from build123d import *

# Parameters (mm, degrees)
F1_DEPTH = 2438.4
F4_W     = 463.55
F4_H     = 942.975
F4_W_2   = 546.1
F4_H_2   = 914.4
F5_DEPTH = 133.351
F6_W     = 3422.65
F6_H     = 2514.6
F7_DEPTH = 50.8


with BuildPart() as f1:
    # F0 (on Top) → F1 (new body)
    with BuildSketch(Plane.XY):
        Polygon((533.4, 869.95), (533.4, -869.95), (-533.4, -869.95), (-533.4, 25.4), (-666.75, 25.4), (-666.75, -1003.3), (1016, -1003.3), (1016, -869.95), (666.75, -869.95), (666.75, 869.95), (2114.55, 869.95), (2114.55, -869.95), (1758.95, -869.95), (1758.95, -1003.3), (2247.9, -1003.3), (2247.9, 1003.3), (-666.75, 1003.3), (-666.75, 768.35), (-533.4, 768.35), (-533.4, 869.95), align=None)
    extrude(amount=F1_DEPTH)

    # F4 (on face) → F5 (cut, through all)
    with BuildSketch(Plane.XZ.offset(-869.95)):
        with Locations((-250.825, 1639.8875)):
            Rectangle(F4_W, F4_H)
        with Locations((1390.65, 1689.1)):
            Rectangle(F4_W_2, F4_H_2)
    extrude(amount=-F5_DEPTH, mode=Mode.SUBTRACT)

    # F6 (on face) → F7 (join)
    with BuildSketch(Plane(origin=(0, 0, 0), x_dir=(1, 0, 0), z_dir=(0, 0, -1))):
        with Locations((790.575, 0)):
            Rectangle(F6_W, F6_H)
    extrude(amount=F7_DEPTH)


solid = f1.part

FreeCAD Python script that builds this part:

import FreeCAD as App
import Part
import Sketcher
Q = App.Units.Quantity

doc = App.newDocument("Part")
params = doc.addObject("Spreadsheet::Sheet", "Params")
for row, (alias, value) in enumerate([
    ("sketch1_width", "42 in"),
    ("sketch1_width2", "57 in"),
    ("sketch1_width3", "14 in"),
    ("sketch1_height", "79 in"),
    ("sketch1_height2", "4 in"),
    ("pad1_length", "96 in"),
    ("sketch2_height", "36 in"),
    ("sketch2_width", "21.5 in"),
    ("sketch2_width2", "18.25 in"),
    ("sketch2_height2", "37.125 in"),
    ("sketch3_height", "99 in"),
    ("sketch3_width", "134.75 in"),
    ("pad2_length", "2 in"),
], start=1):
    params.set(f"A{row}", alias)
    params.set(f"B{row}", "=" + value)
    params.setAlias(f"B{row}", alias)

body = doc.addObject("PartDesign::Body", "Body")

# Sketch on XY plane
sketch1 = body.newObject("Sketcher::SketchObject", "Sketch")
sketch1.AttachmentSupport = (doc.getObject("XY_Plane"), [""])
sketch1.MapMode = "FlatFace"
sketch1.addGeometry(Part.LineSegment(App.Vector(533, 870, 0), App.Vector(533, -870, 0)), False)
sketch1.addGeometry(Part.LineSegment(App.Vector(533, -870, 0), App.Vector(-533, -870, 0)), False)
sketch1.addGeometry(Part.LineSegment(App.Vector(-533, -870, 0), App.Vector(-533, 25, 0)), False)
sketch1.addGeometry(Part.LineSegment(App.Vector(-533, 25, 0), App.Vector(-667, 25, 0)), False)
sketch1.addGeometry(Part.LineSegment(App.Vector(-667, 25, 0), App.Vector(-667, -1003, 0)), False)
sketch1.addGeometry(Part.LineSegment(App.Vector(-667, -1003, 0), App.Vector(1016, -1003, 0)), False)
sketch1.addGeometry(Part.LineSegment(App.Vector(1016, -1003, 0), App.Vector(1016, -870, 0)), False)
sketch1.addGeometry(Part.LineSegment(App.Vector(1016, -870, 0), App.Vector(667, -870, 0)), False)
sketch1.addGeometry(Part.LineSegment(App.Vector(667, -870, 0), App.Vector(667, 870, 0)), False)
sketch1.addGeometry(Part.LineSegment(App.Vector(667, 870, 0), App.Vector(2115, 870, 0)), False)
sketch1.addGeometry(Part.LineSegment(App.Vector(2115, 870, 0), App.Vector(2115, -870, 0)), False)
sketch1.addGeometry(Part.LineSegment(App.Vector(2115, -870, 0), App.Vector(1759, -870, 0)), False)
sketch1.addGeometry(Part.LineSegment(App.Vector(1759, -870, 0), App.Vector(1759, -1003, 0)), False)
sketch1.addGeometry(Part.LineSegment(App.Vector(1759, -1003, 0), App.Vector(2248, -1003, 0)), False)
sketch1.addGeometry(Part.LineSegment(App.Vector(2248, -1003, 0), App.Vector(2248, 1003, 0)), False)
sketch1.addGeometry(Part.LineSegment(App.Vector(2248, 1003, 0), App.Vector(-667, 1003, 0)), False)
sketch1.addGeometry(Part.LineSegment(App.Vector(-667, 1003, 0), App.Vector(-667, 768, 0)), False)
sketch1.addGeometry(Part.LineSegment(App.Vector(-667, 768, 0), App.Vector(-533, 768, 0)), False)
sketch1.addGeometry(Part.LineSegment(App.Vector(-533, 768, 0), App.Vector(-533, 870, 0)), False)
sketch1.addGeometry(Part.LineSegment(App.Vector(-533, 870, 0), App.Vector(533, 870, 0)), False)
sketch1.addConstraint(Sketcher.Constraint("Coincident", 0, 2, 1, 1))
sketch1.addConstraint(Sketcher.Constraint("Coincident", 1, 2, 2, 1))
sketch1.addConstraint(Sketcher.Constraint("Coincident", 2, 2, 3, 1))
sketch1.addConstraint(Sketcher.Constraint("Coincident", 3, 2, 4, 1))
sketch1.addConstraint(Sketcher.Constraint("Coincident", 4, 2, 5, 1))
sketch1.addConstraint(Sketcher.Constraint("Coincident", 5, 2, 6, 1))
sketch1.addConstraint(Sketcher.Constraint("Coincident", 6, 2, 7, 1))
sketch1.addConstraint(Sketcher.Constraint("Coincident", 7, 2, 8, 1))
sketch1.addConstraint(Sketcher.Constraint("Coincident", 8, 2, 9, 1))
sketch1.addConstraint(Sketcher.Constraint("Coincident", 9, 2, 10, 1))
sketch1.addConstraint(Sketcher.Constraint("Coincident", 10, 2, 11, 1))
sketch1.addConstraint(Sketcher.Constraint("Coincident", 11, 2, 12, 1))
sketch1.addConstraint(Sketcher.Constraint("Coincident", 12, 2, 13, 1))
sketch1.addConstraint(Sketcher.Constraint("Coincident", 13, 2, 14, 1))
sketch1.addConstraint(Sketcher.Constraint("Coincident", 14, 2, 15, 1))
sketch1.addConstraint(Sketcher.Constraint("Coincident", 15, 2, 16, 1))
sketch1.addConstraint(Sketcher.Constraint("Coincident", 16, 2, 17, 1))
sketch1.addConstraint(Sketcher.Constraint("Coincident", 17, 2, 18, 1))
sketch1.addConstraint(Sketcher.Constraint("Coincident", 18, 2, 19, 1))
sketch1.addConstraint(Sketcher.Constraint("Coincident", 19, 2, 0, 1))
sketch1.addConstraint(Sketcher.Constraint("Vertical", 0))
sketch1.addConstraint(Sketcher.Constraint("Horizontal", 1))
sketch1.addConstraint(Sketcher.Constraint("Vertical", 2))
sketch1.addConstraint(Sketcher.Constraint("Horizontal", 3))
sketch1.addConstraint(Sketcher.Constraint("Vertical", 4))
sketch1.addConstraint(Sketcher.Constraint("Horizontal", 5))
sketch1.addConstraint(Sketcher.Constraint("Vertical", 6))
sketch1.addConstraint(Sketcher.Constraint("Horizontal", 7))
sketch1.addConstraint(Sketcher.Constraint("Vertical", 8))
sketch1.addConstraint(Sketcher.Constraint("Horizontal", 9))
sketch1.addConstraint(Sketcher.Constraint("Vertical", 10))
sketch1.addConstraint(Sketcher.Constraint("Horizontal", 11))
sketch1.addConstraint(Sketcher.Constraint("Vertical", 12))
sketch1.addConstraint(Sketcher.Constraint("Horizontal", 13))
sketch1.addConstraint(Sketcher.Constraint("Vertical", 14))
sketch1.addConstraint(Sketcher.Constraint("Horizontal", 15))
sketch1.addConstraint(Sketcher.Constraint("Vertical", 16))
sketch1.addConstraint(Sketcher.Constraint("Horizontal", 17))
sketch1.addConstraint(Sketcher.Constraint("Vertical", 18))
sketch1.addConstraint(Sketcher.Constraint("Horizontal", 19))
sketch1.addConstraint(Sketcher.Constraint("Symmetric", 0, 2, 18, 2, -1, 1))
sketch1.addConstraint(Sketcher.Constraint("Symmetric", 4, 2, 15, 2, -1))
sketch1.addConstraint(Sketcher.Constraint("Horizontal", 1, 2, 6, 2))
sketch1.addConstraint(Sketcher.Constraint("Horizontal", 7, 2, 10, 2))
sketch1.addConstraint(Sketcher.Constraint("Horizontal", 5, 2, 12, 2))
sketch1.addConstraint(Sketcher.Constraint("Horizontal", 9, 2, 18, 2))
sketch1.addConstraint(Sketcher.Constraint("Vertical", 2, 2, 17, 2))
sketch1.addConstraint(Sketcher.Constraint("Equal", 17, 6))
sketch1.addConstraint(Sketcher.Constraint("DistanceX", 1, 2, 1, 1, Q("42 in")))
sketch1.addConstraint(Sketcher.Constraint("DistanceX", 9, 1, 9, 2, Q("57 in")))
sketch1.addConstraint(Sketcher.Constraint("DistanceX", 11, 2, 11, 1, Q("14 in")))
sketch1.addConstraint(Sketcher.Constraint("DistanceY", 14, 1, 14, 2, Q("79 in")))
sketch1.addConstraint(Sketcher.Constraint("DistanceY", 18, 1, 18, 2, Q("4 in")))
sketch1.addConstraint(Sketcher.Constraint("DistanceY", 0, 2, 0, 1, Q("68.5 in")))
sketch1.addConstraint(Sketcher.Constraint("DistanceY", 4, 2, 4, 1, Q("40.5 in")))
sketch1.addConstraint(Sketcher.Constraint("DistanceX", -1, 1, 5, 2, Q("40 in")))
sketch1.addConstraint(Sketcher.Constraint("DistanceX", 7, 2, 7, 1, Q("13.75 in")))
sketch1.addConstraint(Sketcher.Constraint("DistanceX", 13, 1, 13, 2, Q("19.25 in")))
sketch1.setExpression("Constraints[48]", "Params.sketch1_width")
sketch1.setExpression("Constraints[49]", "Params.sketch1_width2")
sketch1.setExpression("Constraints[50]", "Params.sketch1_width3")
sketch1.setExpression("Constraints[51]", "Params.sketch1_height")
sketch1.setExpression("Constraints[52]", "Params.sketch1_height2")
pad1 = body.newObject("PartDesign::Pad", "Pad")
pad1.Profile = sketch1
pad1.setExpression("Length", "Params.pad1_length")

# Sketch on XZ plane
sketch2 = body.newObject("Sketcher::SketchObject", "Sketch001")
sketch2.AttachmentSupport = (doc.getObject("XZ_Plane"), [""])
sketch2.MapMode = "FlatFace"
sketch2.AttachmentOffset = App.Placement(App.Vector(0, 0, -34.25 * 25.4), App.Rotation())
sketch2.addGeometry(Part.LineSegment(App.Vector(-483, 2111, 0), App.Vector(-483, 1168, 0)), False)
sketch2.addGeometry(Part.LineSegment(App.Vector(-483, 1168, 0), App.Vector(-19, 1168, 0)), False)
sketch2.addGeometry(Part.LineSegment(App.Vector(-19, 1168, 0), App.Vector(-19, 2111, 0)), False)
sketch2.addGeometry(Part.LineSegment(App.Vector(-19, 2111, 0), App.Vector(-483, 2111, 0)), False)
sketch2.addGeometry(Part.LineSegment(App.Vector(1118, 2146, 0), App.Vector(1118, 1232, 0)), False)
sketch2.addGeometry(Part.LineSegment(App.Vector(1118, 1232, 0), App.Vector(1664, 1232, 0)), False)
sketch2.addGeometry(Part.LineSegment(App.Vector(1664, 1232, 0), App.Vector(1664, 2146, 0)), False)
sketch2.addGeometry(Part.LineSegment(App.Vector(1664, 2146, 0), App.Vector(1118, 2146, 0)), False)
sketch2.addConstraint(Sketcher.Constraint("Coincident", 0, 2, 1, 1))
sketch2.addConstraint(Sketcher.Constraint("Coincident", 1, 2, 2, 1))
sketch2.addConstraint(Sketcher.Constraint("Coincident", 2, 2, 3, 1))
sketch2.addConstraint(Sketcher.Constraint("Coincident", 3, 2, 0, 1))
sketch2.addConstraint(Sketcher.Constraint("Coincident", 4, 2, 5, 1))
sketch2.addConstraint(Sketcher.Constraint("Coincident", 5, 2, 6, 1))
sketch2.addConstraint(Sketcher.Constraint("Coincident", 6, 2, 7, 1))
sketch2.addConstraint(Sketcher.Constraint("Coincident", 7, 2, 4, 1))
sketch2.addConstraint(Sketcher.Constraint("Vertical", 0))
sketch2.addConstraint(Sketcher.Constraint("Horizontal", 1))
sketch2.addConstraint(Sketcher.Constraint("Vertical", 2))
sketch2.addConstraint(Sketcher.Constraint("Horizontal", 3))
sketch2.addConstraint(Sketcher.Constraint("Vertical", 4))
sketch2.addConstraint(Sketcher.Constraint("Horizontal", 5))
sketch2.addConstraint(Sketcher.Constraint("Vertical", 6))
sketch2.addConstraint(Sketcher.Constraint("Horizontal", 7))
sketch2.addConstraint(Sketcher.Constraint("DistanceY", 4, 2, 4, 1, Q("36 in")))
sketch2.addConstraint(Sketcher.Constraint("DistanceX", 5, 1, 5, 2, Q("21.5 in")))
sketch2.addConstraint(Sketcher.Constraint("DistanceX", 0, 2, -1, 1, Q("19 in")))
sketch2.addConstraint(Sketcher.Constraint("DistanceY", -1, 1, 0, 2, Q("46 in")))
sketch2.addConstraint(Sketcher.Constraint("DistanceX", -1, 1, 4, 2, Q("44 in")))
sketch2.addConstraint(Sketcher.Constraint("DistanceX", 1, 1, 1, 2, Q("18.25 in")))
sketch2.addConstraint(Sketcher.Constraint("DistanceY", -1, 1, 4, 2, Q("48.5 in")))
sketch2.addConstraint(Sketcher.Constraint("DistanceY", 0, 2, 0, 1, Q("37.125 in")))
sketch2.setExpression("Constraints[16]", "Params.sketch2_height")
sketch2.setExpression("Constraints[17]", "Params.sketch2_width")
sketch2.setExpression("Constraints[21]", "Params.sketch2_width2")
sketch2.setExpression("Constraints[23]", "Params.sketch2_height2")
pocket1 = body.newObject("PartDesign::Pocket", "Pocket")
pocket1.Profile = sketch2
pocket1.Type = "ThroughAll"

# Sketch on XY plane
sketch3 = body.newObject("Sketcher::SketchObject", "Sketch002")
sketch3.AttachmentSupport = (doc.getObject("XY_Plane"), [""])
sketch3.MapMode = "FlatFace"
sketch3.addGeometry(Part.LineSegment(App.Vector(-921, -1257, 0), App.Vector(-921, 1257, 0)), False)
sketch3.addGeometry(Part.LineSegment(App.Vector(-921, 1257, 0), App.Vector(2502, 1257, 0)), False)
sketch3.addGeometry(Part.LineSegment(App.Vector(2502, 1257, 0), App.Vector(2502, -1257, 0)), False)
sketch3.addGeometry(Part.LineSegment(App.Vector(2502, -1257, 0), App.Vector(-921, -1257, 0)), False)
sketch3.addConstraint(Sketcher.Constraint("Coincident", 0, 2, 1, 1))
sketch3.addConstraint(Sketcher.Constraint("Coincident", 1, 2, 2, 1))
sketch3.addConstraint(Sketcher.Constraint("Coincident", 2, 2, 3, 1))
sketch3.addConstraint(Sketcher.Constraint("Coincident", 3, 2, 0, 1))
sketch3.addConstraint(Sketcher.Constraint("Vertical", 0))
sketch3.addConstraint(Sketcher.Constraint("Horizontal", 1))
sketch3.addConstraint(Sketcher.Constraint("Vertical", 2))
sketch3.addConstraint(Sketcher.Constraint("Horizontal", 3))
sketch3.addConstraint(Sketcher.Constraint("DistanceY", 0, 1, 0, 2, Q("99 in")))
sketch3.addConstraint(Sketcher.Constraint("DistanceX", 1, 1, 1, 2, Q("134.75 in")))
sketch3.addConstraint(Sketcher.Constraint("DistanceY", -1, 1, 0, 2, Q("49.5 in")))
sketch3.addConstraint(Sketcher.Constraint("DistanceX", -1, 1, 1, 2, Q("98.5 in")))
sketch3.setExpression("Constraints[8]", "Params.sketch3_height")
sketch3.setExpression("Constraints[9]", "Params.sketch3_width")
pad2 = body.newObject("PartDesign::Pad", "Pad001")
pad2.Profile = sketch3
pad2.setExpression("Length", "Params.pad2_length")
pad2.Reversed = True

doc.recompute()
